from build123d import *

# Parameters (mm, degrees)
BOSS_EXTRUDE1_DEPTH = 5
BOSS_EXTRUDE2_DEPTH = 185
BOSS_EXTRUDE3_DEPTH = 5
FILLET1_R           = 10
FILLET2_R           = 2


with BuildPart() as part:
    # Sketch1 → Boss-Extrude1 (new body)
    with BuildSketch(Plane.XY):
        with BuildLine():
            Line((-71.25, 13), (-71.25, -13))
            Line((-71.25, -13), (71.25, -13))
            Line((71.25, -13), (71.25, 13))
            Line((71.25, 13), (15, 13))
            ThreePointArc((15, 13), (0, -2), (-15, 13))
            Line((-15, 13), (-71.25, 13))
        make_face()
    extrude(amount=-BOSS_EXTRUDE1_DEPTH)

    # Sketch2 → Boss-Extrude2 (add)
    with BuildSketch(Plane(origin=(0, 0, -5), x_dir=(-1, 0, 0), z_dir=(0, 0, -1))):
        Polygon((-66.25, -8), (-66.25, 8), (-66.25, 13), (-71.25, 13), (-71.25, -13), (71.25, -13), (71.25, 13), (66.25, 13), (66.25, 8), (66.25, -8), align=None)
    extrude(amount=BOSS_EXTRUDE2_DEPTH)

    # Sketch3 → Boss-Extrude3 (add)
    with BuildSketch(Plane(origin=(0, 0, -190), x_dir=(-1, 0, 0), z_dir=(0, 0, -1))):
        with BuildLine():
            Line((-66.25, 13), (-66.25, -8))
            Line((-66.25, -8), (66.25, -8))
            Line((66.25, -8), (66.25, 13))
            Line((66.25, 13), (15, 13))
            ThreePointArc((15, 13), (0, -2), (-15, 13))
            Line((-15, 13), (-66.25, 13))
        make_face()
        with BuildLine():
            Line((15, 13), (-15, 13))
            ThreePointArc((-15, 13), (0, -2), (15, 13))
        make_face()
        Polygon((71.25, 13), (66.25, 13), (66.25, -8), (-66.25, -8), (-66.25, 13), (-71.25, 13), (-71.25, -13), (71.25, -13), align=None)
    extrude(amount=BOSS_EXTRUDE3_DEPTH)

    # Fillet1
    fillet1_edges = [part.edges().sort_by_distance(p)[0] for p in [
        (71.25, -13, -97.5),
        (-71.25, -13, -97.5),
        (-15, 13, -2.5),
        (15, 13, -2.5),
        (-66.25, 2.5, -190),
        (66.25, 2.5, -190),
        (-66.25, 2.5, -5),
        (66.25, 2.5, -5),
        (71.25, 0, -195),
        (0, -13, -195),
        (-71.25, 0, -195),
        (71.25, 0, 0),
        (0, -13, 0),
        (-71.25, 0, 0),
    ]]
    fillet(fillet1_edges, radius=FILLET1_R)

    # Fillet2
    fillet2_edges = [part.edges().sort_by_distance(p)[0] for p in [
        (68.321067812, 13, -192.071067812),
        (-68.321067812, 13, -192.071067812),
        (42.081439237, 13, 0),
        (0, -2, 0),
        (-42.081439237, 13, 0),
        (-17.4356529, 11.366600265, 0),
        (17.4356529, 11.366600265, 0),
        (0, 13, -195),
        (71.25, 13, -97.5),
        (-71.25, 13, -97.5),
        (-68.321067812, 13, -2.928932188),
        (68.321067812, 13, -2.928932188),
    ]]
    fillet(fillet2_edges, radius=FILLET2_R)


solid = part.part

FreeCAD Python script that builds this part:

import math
import FreeCAD as App
import Part
import Sketcher

V = App.Vector
Q = App.Units.Quantity


def edges_at(feature, points):
    """Names of the edges that pass closest to the given points."""
    edges = feature.Shape.Edges
    near = lambda p: min(range(len(edges)), key=lambda i: edges[i].distToShape(Part.Vertex(*p))[0])
    return sorted({f"Edge{near(p) + 1}" for p in points})

doc = App.newDocument("Part")
params = doc.addObject("Spreadsheet::Sheet", "Params")
for row, (alias, value) in enumerate([
    ("sketch1_radius", "15 mm"),
    ("sketch1_height", "26 mm"),
    ("sketch1_width", "142.5 mm"),
    ("pad1_length", "5 mm"),
    ("sketch2_width", "5 mm"),
    ("sketch2_height", "21 mm"),
    ("sketch2_height2", "26 mm"),
    ("sketch2_width2", "142.5 mm"),
    ("pad2_length", "185 mm"),
    ("sketch3_height", "26 mm"),
    ("sketch3_width", "142.5 mm"),
    ("pad3_length", "5 mm"),
    ("fillet_radius", "10 mm"),
    ("fillet2_radius", "2 mm"),
], start=1):
    params.set(f"A{row}", alias)
    params.set(f"B{row}", "=" + value)
    params.setAlias(f"B{row}", alias)

body = doc.addObject("PartDesign::Body", "Body")

# Sketch on XY plane
sketch1 = doc.addObject("Sketcher::SketchObject", "Sketch")
body.addObject(sketch1)
sketch1.AttachmentSupport = (doc.XY_Plane, [""])
sketch1.MapMode = "FlatFace"
sketch1.addGeometry(Part.LineSegment(V(-71, 13, 0), V(-71, -13, 0)), False)
sketch1.addGeometry(Part.LineSegment(V(-71, -13, 0), V(71, -13, 0)), False)
sketch1.addGeometry(Part.LineSegment(V(71, -13, 0), V(71, 13, 0)), False)
sketch1.addGeometry(Part.LineSegment(V(71, 13, 0), V(15, 13, 0)), False)
sketch1.addGeometry(Part.ArcOfCircle(Part.Circle(V(0, 13, 0), V(0, 0, 1), 15), math.radians(180), math.radians(360)), False)
sketch1.addGeometry(Part.LineSegment(V(-15, 13, 0), V(-71, 13, 0)), False)
sketch1.addConstraint(Sketcher.Constraint("Coincident", 0, 2, 1, 1))
sketch1.addConstraint(Sketcher.Constraint("Coincident", 1, 2, 2, 1))
sketch1.addConstraint(Sketcher.Constraint("Coincident", 2, 2, 3, 1))
sketch1.addConstraint(Sketcher.Constraint("Coincident", 3, 2, 4, 2))
sketch1.addConstraint(Sketcher.Constraint("Coincident", 4, 1, 5, 1))
sketch1.addConstraint(Sketcher.Constraint("Coincident", 5, 2, 0, 1))
sketch1.addConstraint(Sketcher.Constraint("Vertical", 0))
sketch1.addConstraint(Sketcher.Constraint("Horizontal", 1))
sketch1.addConstraint(Sketcher.Constraint("Vertical", 2))
sketch1.addConstraint(Sketcher.Constraint("Horizontal", 3))
sketch1.addConstraint(Sketcher.Constraint("Horizontal", 5))
sketch1.addConstraint(Sketcher.Constraint("Symmetric", 0, 2, 2, 2, -1, 1))
sketch1.addConstraint(Sketcher.Constraint("Symmetric", 3, 2, 4, 1, -2))
sketch1.addConstraint(Sketcher.Constraint("Horizontal", 4, 3, 2, 2))
sketch1.addConstraint(Sketcher.Constraint("Radius", 4, Q("15 mm")))
sketch1.addConstraint(Sketcher.Constraint("DistanceY", 0, 2, 0, 1, Q("26 mm")))
sketch1.addConstraint(Sketcher.Constraint("DistanceX", 1, 1, 1, 2, Q("142.5 mm")))
sketch1.setExpression("Constraints[14]", "Params.sketch1_radius")
sketch1.setExpression("Constraints[15]", "Params.sketch1_height")
sketch1.setExpression("Constraints[16]", "Params.sketch1_width")
pad1 = doc.addObject("PartDesign::Pad", "Pad")
body.addObject(pad1)
pad1.Profile = sketch1
pad1.setExpression("Length", "Params.pad1_length")
pad1.Reversed = True

# Sketch on XY plane
sketch2 = doc.addObject("Sketcher::SketchObject", "Sketch001")
body.addObject(sketch2)
sketch2.AttachmentSupport = (doc.XY_Plane, [""])
sketch2.MapMode = "FlatFace"
sketch2.AttachmentOffset = App.Placement(V(0, 0, -5), App.Rotation())
sketch2.addGeometry(Part.LineSegment(V(66, -8, 0), V(66, 13, 0)), False)
sketch2.addGeometry(Part.LineSegment(V(66, 13, 0), V(71, 13, 0)), False)
sketch2.addGeometry(Part.LineSegment(V(71, 13, 0), V(71, -13, 0)), False)
sketch2.addGeometry(Part.LineSegment(V(71, -13, 0), V(-71, -13, 0)), False)
sketch2.addGeometry(Part.LineSegment(V(-71, -13, 0), V(-71, 13, 0)), False)
sketch2.addGeometry(Part.LineSegment(V(-71, 13, 0), V(-66, 13, 0)), False)
sketch2.addGeometry(Part.LineSegment(V(-66, 13, 0), V(-66, -8, 0)), False)
sketch2.addGeometry(Part.LineSegment(V(-66, -8, 0), V(66, -8, 0)), False)
sketch2.addConstraint(Sketcher.Constraint("Coincident", 0, 2, 1, 1))
sketch2.addConstraint(Sketcher.Constraint("Coincident", 1, 2, 2, 1))
sketch2.addConstraint(Sketcher.Constraint("Coincident", 2, 2, 3, 1))
sketch2.addConstraint(Sketcher.Constraint("Coincident", 3, 2, 4, 1))
sketch2.addConstraint(Sketcher.Constraint("Coincident", 4, 2, 5, 1))
sketch2.addConstraint(Sketcher.Constraint("Coincident", 5, 2, 6, 1))
sketch2.addConstraint(Sketcher.Constraint("Coincident", 6, 2, 7, 1))
sketch2.addConstraint(Sketcher.Constraint("Coincident", 7, 2, 0, 1))
sketch2.addConstraint(Sketcher.Constraint("Vertical", 0))
sketch2.addConstraint(Sketcher.Constraint("Horizontal", 1))
sketch2.addConstraint(Sketcher.Constraint("Vertical", 2))
sketch2.addConstraint(Sketcher.Constraint("Horizontal", 3))
sketch2.addConstraint(Sketcher.Constraint("Vertical", 4))
sketch2.addConstraint(Sketcher.Constraint("Horizontal", 5))
sketch2.addConstraint(Sketcher.Constraint("Vertical", 6))
sketch2.addConstraint(Sketcher.Constraint("Horizontal", 7))
sketch2.addConstraint(Sketcher.Constraint("Symmetric", 1, 2, 3, 2, -1, 1))
sketch2.addConstraint(Sketcher.Constraint("Symmetric", 0, 2, 5, 2, -2))
sketch2.addConstraint(Sketcher.Constraint("DistanceX", 1, 1, 1, 2, Q("5 mm")))
sketch2.addConstraint(Sketcher.Constraint("DistanceY", 0, 1, 0, 2, Q("21 mm")))
sketch2.addConstraint(Sketcher.Constraint("DistanceY", 2, 2, 2, 1, Q("26 mm")))
sketch2.addConstraint(Sketcher.Constraint("DistanceX", 3, 2, 3, 1, Q("142.5 mm")))
sketch2.setExpression("Constraints[18]", "Params.sketch2_width")
sketch2.setExpression("Constraints[19]", "Params.sketch2_height")
sketch2.setExpression("Constraints[20]", "Params.sketch2_height2")
sketch2.setExpression("Constraints[21]", "Params.sketch2_width2")
pad2 = doc.addObject("PartDesign::Pad", "Pad001")
body.addObject(pad2)
pad2.Profile = sketch2
pad2.setExpression("Length", "Params.pad2_length")
pad2.Reversed = True

# Sketch on XY plane
sketch3 = doc.addObject("Sketcher::SketchObject", "Sketch002")
body.addObject(sketch3)
sketch3.AttachmentSupport = (doc.XY_Plane, [""])
sketch3.MapMode = "FlatFace"
sketch3.AttachmentOffset = App.Placement(V(0, 0, -190), App.Rotation())
sketch3.addGeometry(Part.LineSegment(V(71, 13, 0), V(71, -13, 0)), False)
sketch3.addGeometry(Part.LineSegment(V(71, -13, 0), V(-71, -13, 0)), False)
sketch3.addGeometry(Part.LineSegment(V(-71, -13, 0), V(-71, 13, 0)), False)
sketch3.addGeometry(Part.LineSegment(V(-71, 13, 0), V(71, 13, 0)), False)
sketch3.addConstraint(Sketcher.Constraint("Coincident", 0, 2, 1, 1))
sketch3.addConstraint(Sketcher.Constraint("Coincident", 1, 2, 2, 1))
sketch3.addConstraint(Sketcher.Constraint("Coincident", 2, 2, 3, 1))
sketch3.addConstraint(Sketcher.Constraint("Coincident", 3, 2, 0, 1))
sketch3.addConstraint(Sketcher.Constraint("Vertical", 0))
sketch3.addConstraint(Sketcher.Constraint("Horizontal", 1))
sketch3.addConstraint(Sketcher.Constraint("Vertical", 2))
sketch3.addConstraint(Sketcher.Constraint("Horizontal", 3))
sketch3.addConstraint(Sketcher.Constraint("Symmetric", 0, 2, 2, 2, -1, 1))
sketch3.addConstraint(Sketcher.Constraint("DistanceY", 0, 2, 0, 1, Q("26 mm")))
sketch3.addConstraint(Sketcher.Constraint("DistanceX", 1, 2, 1, 1, Q("142.5 mm")))
sketch3.setExpression("Constraints[9]", "Params.sketch3_height")
sketch3.setExpression("Constraints[10]", "Params.sketch3_width")
pad3 = doc.addObject("PartDesign::Pad", "Pad002")
body.addObject(pad3)
pad3.Profile = sketch3
pad3.setExpression("Length", "Params.pad3_length")
pad3.Reversed = True
doc.recompute()

fillet = doc.addObject("PartDesign::Fillet", "Fillet")
body.addObject(fillet)
fillet.Base = (pad3, edges_at(pad3, [
    (71.25, -13, -97.5),
    (-71.25, -13, -97.5),
    (-15, 13, -2.5),
    (15, 13, -2.5),
    (-66.25, 2.5, -190),
    (66.25, 2.5, -190),
    (-66.25, 2.5, -5),
    (66.25, 2.5, -5),
    (71.25, 0, -195),
    (0, -13, -195),
    (-71.25, 0, -195),
    (71.25, 0, 0),
    (0, -13, 0),
    (-71.25, 0, 0),
]))
fillet.setExpression("Radius", "Params.fillet_radius")
doc.recompute()

fillet2 = doc.addObject("PartDesign::Fillet", "Fillet001")
body.addObject(fillet2)
fillet2.Base = (fillet, edges_at(fillet, [
    (68.321, 13, -192.071),
    (-68.321, 13, -192.071),
    (42.081, 13, 0),
    (0, -2, 0),
    (-42.081, 13, 0),
    (-17.436, 11.367, 0),
    (17.436, 11.367, 0),
    (0, 13, -195),
    (71.25, 13, -97.5),
    (-71.25, 13, -97.5),
    (-68.321, 13, -2.929),
    (68.321, 13, -2.929),
]))
fillet2.setExpression("Radius", "Params.fillet2_radius")

doc.recompute()
